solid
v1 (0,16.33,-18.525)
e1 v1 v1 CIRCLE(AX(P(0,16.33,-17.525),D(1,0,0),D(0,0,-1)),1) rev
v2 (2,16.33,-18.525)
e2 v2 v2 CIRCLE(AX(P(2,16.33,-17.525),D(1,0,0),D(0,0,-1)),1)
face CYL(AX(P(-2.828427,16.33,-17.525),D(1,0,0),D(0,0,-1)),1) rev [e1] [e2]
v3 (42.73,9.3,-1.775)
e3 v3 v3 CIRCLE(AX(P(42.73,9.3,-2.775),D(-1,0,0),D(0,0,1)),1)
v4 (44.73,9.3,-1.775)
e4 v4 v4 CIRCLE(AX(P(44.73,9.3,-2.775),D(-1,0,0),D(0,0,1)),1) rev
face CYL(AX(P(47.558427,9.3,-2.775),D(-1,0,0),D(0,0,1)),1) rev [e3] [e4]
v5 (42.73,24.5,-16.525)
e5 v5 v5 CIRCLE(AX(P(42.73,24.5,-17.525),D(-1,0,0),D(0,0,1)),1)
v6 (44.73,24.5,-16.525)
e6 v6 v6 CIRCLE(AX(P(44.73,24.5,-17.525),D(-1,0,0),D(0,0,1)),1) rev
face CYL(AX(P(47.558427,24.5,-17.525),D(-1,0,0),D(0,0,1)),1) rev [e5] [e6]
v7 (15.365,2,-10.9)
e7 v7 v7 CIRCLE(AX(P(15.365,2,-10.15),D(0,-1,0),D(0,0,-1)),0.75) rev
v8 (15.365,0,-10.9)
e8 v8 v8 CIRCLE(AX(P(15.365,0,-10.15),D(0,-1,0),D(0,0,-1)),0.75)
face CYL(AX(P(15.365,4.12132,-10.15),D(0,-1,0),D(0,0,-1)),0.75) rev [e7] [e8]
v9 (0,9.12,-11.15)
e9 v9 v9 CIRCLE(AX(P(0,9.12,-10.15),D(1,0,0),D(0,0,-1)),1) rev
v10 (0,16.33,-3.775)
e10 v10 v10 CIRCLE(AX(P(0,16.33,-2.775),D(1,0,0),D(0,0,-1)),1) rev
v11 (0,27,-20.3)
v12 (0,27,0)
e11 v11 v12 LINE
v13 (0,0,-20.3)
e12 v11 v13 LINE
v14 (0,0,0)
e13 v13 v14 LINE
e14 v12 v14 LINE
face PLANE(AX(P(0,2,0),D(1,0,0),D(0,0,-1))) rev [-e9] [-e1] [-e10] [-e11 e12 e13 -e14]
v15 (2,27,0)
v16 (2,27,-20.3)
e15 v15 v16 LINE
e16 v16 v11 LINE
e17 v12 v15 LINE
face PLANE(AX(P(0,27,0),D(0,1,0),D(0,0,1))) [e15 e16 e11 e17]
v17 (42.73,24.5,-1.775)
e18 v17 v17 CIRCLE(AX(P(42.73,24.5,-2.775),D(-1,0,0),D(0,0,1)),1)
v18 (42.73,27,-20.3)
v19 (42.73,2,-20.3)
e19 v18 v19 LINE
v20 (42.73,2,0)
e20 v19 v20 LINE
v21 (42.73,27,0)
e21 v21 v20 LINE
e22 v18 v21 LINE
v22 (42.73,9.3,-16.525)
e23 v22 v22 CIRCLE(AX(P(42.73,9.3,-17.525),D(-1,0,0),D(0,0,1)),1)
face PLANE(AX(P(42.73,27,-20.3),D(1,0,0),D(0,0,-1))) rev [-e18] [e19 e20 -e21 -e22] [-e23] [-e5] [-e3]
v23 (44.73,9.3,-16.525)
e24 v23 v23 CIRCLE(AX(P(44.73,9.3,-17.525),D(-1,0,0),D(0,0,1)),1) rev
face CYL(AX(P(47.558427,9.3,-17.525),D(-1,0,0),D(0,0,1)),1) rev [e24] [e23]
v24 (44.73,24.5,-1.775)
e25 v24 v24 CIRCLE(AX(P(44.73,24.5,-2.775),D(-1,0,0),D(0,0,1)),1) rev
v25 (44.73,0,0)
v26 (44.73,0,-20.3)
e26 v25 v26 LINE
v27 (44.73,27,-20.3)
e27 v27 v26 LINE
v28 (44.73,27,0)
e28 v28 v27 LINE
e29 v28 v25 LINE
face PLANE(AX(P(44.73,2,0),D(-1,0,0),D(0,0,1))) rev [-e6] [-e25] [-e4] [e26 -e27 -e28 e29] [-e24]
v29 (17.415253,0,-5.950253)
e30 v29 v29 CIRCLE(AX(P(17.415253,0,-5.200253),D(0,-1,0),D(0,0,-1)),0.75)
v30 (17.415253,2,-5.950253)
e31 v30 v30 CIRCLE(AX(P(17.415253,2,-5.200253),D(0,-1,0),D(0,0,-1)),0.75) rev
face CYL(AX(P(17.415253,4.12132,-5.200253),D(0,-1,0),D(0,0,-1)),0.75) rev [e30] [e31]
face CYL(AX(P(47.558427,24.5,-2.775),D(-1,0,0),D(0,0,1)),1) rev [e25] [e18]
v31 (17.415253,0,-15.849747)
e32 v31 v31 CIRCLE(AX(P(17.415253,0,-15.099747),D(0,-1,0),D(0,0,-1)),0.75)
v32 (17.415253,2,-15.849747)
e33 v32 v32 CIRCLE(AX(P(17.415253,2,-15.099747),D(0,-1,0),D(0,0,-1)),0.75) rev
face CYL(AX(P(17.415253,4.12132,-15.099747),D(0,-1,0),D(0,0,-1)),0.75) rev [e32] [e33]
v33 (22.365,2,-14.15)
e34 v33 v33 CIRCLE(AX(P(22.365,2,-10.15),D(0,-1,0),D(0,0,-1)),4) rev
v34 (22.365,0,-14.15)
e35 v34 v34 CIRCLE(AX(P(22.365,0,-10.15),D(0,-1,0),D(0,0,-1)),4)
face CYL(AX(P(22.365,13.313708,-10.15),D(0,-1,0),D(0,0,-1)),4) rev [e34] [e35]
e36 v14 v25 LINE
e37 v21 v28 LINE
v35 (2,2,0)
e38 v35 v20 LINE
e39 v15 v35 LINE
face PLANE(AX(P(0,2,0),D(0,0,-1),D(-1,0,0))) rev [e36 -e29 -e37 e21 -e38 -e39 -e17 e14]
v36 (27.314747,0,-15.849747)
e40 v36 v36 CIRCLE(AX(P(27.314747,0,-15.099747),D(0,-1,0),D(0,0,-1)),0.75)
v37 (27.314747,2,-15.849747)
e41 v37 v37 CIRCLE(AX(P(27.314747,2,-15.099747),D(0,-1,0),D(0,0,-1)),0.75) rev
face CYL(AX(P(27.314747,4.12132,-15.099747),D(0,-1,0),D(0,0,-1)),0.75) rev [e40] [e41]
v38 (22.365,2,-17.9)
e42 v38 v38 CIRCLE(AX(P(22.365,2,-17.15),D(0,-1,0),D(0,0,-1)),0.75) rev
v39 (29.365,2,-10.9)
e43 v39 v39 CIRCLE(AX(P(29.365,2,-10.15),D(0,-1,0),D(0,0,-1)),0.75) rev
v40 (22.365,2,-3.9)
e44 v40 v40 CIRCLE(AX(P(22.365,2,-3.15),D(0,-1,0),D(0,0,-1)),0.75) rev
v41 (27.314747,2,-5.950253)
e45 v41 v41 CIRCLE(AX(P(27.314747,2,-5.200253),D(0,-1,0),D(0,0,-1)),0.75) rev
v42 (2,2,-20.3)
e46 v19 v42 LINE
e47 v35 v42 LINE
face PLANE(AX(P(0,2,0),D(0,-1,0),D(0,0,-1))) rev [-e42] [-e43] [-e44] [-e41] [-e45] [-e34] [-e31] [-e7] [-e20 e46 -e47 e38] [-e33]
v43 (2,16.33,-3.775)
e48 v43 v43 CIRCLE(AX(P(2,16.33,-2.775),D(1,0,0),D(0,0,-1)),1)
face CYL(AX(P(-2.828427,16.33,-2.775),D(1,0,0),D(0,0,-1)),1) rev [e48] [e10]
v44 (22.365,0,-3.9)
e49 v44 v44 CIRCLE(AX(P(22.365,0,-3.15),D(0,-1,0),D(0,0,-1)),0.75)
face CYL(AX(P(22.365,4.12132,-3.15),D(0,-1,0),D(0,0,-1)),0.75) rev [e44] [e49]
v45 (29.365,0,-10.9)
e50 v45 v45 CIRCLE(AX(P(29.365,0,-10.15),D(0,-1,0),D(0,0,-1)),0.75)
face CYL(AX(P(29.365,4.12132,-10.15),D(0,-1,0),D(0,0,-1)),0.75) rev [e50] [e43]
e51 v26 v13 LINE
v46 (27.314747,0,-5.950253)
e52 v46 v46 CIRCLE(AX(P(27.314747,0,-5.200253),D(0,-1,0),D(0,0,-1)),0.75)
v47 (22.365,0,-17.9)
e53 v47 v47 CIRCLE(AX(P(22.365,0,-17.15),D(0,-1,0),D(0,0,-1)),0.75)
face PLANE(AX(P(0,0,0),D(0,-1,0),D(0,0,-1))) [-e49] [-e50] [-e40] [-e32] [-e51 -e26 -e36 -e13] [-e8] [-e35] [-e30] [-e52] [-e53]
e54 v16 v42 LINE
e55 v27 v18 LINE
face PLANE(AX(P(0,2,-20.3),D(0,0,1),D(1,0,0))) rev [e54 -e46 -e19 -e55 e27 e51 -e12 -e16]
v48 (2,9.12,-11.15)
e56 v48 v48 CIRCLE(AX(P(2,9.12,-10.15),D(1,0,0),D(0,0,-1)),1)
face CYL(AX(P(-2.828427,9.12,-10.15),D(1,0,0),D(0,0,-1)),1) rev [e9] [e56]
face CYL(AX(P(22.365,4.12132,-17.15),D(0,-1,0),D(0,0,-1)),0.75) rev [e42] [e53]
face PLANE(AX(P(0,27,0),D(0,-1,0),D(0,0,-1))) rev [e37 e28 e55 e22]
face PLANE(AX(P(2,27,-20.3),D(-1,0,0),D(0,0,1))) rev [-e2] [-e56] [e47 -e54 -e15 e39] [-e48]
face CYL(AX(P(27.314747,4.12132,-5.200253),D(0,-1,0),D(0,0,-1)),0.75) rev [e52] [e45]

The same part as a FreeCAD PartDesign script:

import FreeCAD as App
import Part
import Sketcher
Q = App.Units.Quantity


def add_polygon(sketch, points):
    """Adds a closed chain of lines whose ends are joined by coincident constraints."""
    first, n = sketch.GeometryCount, len(points)
    for a, b in zip(points, points[1:] + points[:1]):
        sketch.addGeometry(Part.LineSegment(App.Vector(*a, 0), App.Vector(*b, 0)), False)
    for i in range(n):
        sketch.addConstraint(Sketcher.Constraint("Coincident", first + i, 2, first + (i + 1) % n, 1))

doc = App.newDocument("Part")
body = doc.addObject("PartDesign::Body", "Body")

sketch1 = body.newObject("Sketcher::SketchObject", "Sketch")
sketch1.AttachmentSupport = (doc.getObject("XZ_Plane"), [""])
sketch1.MapMode = "FlatFace"
add_polygon(sketch1, [(0, -20), (0, 0), (45, 0), (45, -20)])
sketch1.addConstraint(Sketcher.Constraint("Vertical", 0))
sketch1.addConstraint(Sketcher.Constraint("Horizontal", 1))
sketch1.addConstraint(Sketcher.Constraint("Vertical", 2))
sketch1.addConstraint(Sketcher.Constraint("Horizontal", 3))
sketch1.addConstraint(Sketcher.Constraint("Coincident", 0, 2, -1, 1))
sketch1.addConstraint(Sketcher.Constraint("DistanceY", 0, 1, 0, 2, Q("20.3 mm")))
sketch1.addConstraint(Sketcher.Constraint("DistanceX", 1, 1, 1, 2, Q("44.73 mm")))
pad1 = body.newObject("PartDesign::Pad", "Pad")
pad1.Profile = sketch1
pad1.Length = 2
pad1.Reversed = True

sketch2 = body.newObject("Sketcher::SketchObject", "Sketch001")
sketch2.AttachmentSupport = (doc.getObject("XZ_Plane"), [""])
sketch2.MapMode = "FlatFace"
sketch2.AttachmentOffset = App.Placement(App.Vector(0, 0, -2), App.Rotation())
add_polygon(sketch2, [(0, -20.3), (0, 0), (2, 0), (2, -20.3)])
add_polygon(sketch2, [(42.7, -20.3), (42.7, 0), (44.7, 0), (44.7, -20.3)])
sketch2.addConstraint(Sketcher.Constraint("Vertical", 0))
sketch2.addConstraint(Sketcher.Constraint("Horizontal", 1))
sketch2.addConstraint(Sketcher.Constraint("Vertical", 2))
sketch2.addConstraint(Sketcher.Constraint("Horizontal", 3))
sketch2.addConstraint(Sketcher.Constraint("Vertical", 4))
sketch2.addConstraint(Sketcher.Constraint("Horizontal", 5))
sketch2.addConstraint(Sketcher.Constraint("Vertical", 6))
sketch2.addConstraint(Sketcher.Constraint("Horizontal", 7))
sketch2.addConstraint(Sketcher.Constraint("Coincident", 0, 2, -1, 1))
sketch2.addConstraint(Sketcher.Constraint("PointOnObject", 4, 2, -1))
sketch2.addConstraint(Sketcher.Constraint("Horizontal", 3, 2, 6, 2))
sketch2.addConstraint(Sketcher.Constraint("Equal", 3, 5))
sketch2.addConstraint(Sketcher.Constraint("DistanceX", 1, 1, 1, 2, Q("2 mm")))
sketch2.addConstraint(Sketcher.Constraint("DistanceY", 0, 1, 0, 2, Q("20.3 mm")))
sketch2.addConstraint(Sketcher.Constraint("DistanceX", -1, 1, 4, 2, Q("42.73 mm")))
pad2 = body.newObject("PartDesign::Pad", "Pad001")
pad2.Profile = sketch2
pad2.Length = 25
pad2.Reversed = True

sketch3 = body.newObject("Sketcher::SketchObject", "Sketch002")
sketch3.AttachmentSupport = (doc.getObject("XZ_Plane"), [""])
sketch3.MapMode = "FlatFace"
sketch3.addGeometry(Part.Circle(App.Vector(22.4, -10.2, 0), App.Vector(0, 0, 1), 4), False)
sketch3.addConstraint(Sketcher.Constraint("Diameter", 0, Q("8 mm")))
sketch3.addConstraint(Sketcher.Constraint("DistanceY", 0, 3, -1, 1, Q("10.15 mm")))
sketch3.addConstraint(Sketcher.Constraint("DistanceX", -1, 1, 0, 3, Q("22.365 mm")))
pocket1 = body.newObject("PartDesign::Pocket", "Pocket")
pocket1.Profile = sketch3
pocket1.Length = 2

sketch4 = body.newObject("Sketcher::SketchObject", "Sketch003")
sketch4.AttachmentSupport = (doc.getObject("XZ_Plane"), [""])
sketch4.MapMode = "FlatFace"
sketch4.addGeometry(Part.Circle(App.Vector(15.4, -10.2, 0), App.Vector(0, 0, 1), 0.8), False)
sketch4.addGeometry(Part.Circle(App.Vector(17.4, -5.2, 0), App.Vector(0, 0, 1), 0.8), False)
sketch4.addGeometry(Part.Circle(App.Vector(22.4, -3.1, 0), App.Vector(0, 0, 1), 0.8), False)
sketch4.addGeometry(Part.Circle(App.Vector(27.3, -5.2, 0), App.Vector(0, 0, 1), 0.8), False)
sketch4.addGeometry(Part.Circle(App.Vector(29.4, -10.2, 0), App.Vector(0, 0, 1), 0.8), False)
sketch4.addGeometry(Part.Circle(App.Vector(27.3, -15.1, 0), App.Vector(0, 0, 1), 0.8), False)
sketch4.addGeometry(Part.Circle(App.Vector(22.4, -17.1, 0), App.Vector(0, 0, 1), 0.8), False)
sketch4.addGeometry(Part.Circle(App.Vector(17.4, -15.1, 0), App.Vector(0, 0, 1), 0.8), False)
sketch4.addConstraint(Sketcher.Constraint("Equal", 0, 1))
sketch4.addConstraint(Sketcher.Constraint("Equal", 1, 2))
sketch4.addConstraint(Sketcher.Constraint("Equal", 2, 3))
sketch4.addConstraint(Sketcher.Constraint("Equal", 3, 4))
sketch4.addConstraint(Sketcher.Constraint("Equal", 4, 5))
sketch4.addConstraint(Sketcher.Constraint("Equal", 5, 6))
sketch4.addConstraint(Sketcher.Constraint("Equal", 6, 7))
sketch4.addConstraint(Sketcher.Constraint("Horizontal", 1, 3, 3, 3))
sketch4.addConstraint(Sketcher.Constraint("Horizontal", 0, 3, 4, 3))
sketch4.addConstraint(Sketcher.Constraint("Horizontal", 5, 3, 7, 3))
sketch4.addConstraint(Sketcher.Constraint("Vertical", 3, 3, 5, 3))
sketch4.addConstraint(Sketcher.Constraint("Vertical", 2, 3, 6, 3))
sketch4.addConstraint(Sketcher.Constraint("Vertical", 1, 3, 7, 3))
sketch4.addConstraint(Sketcher.Constraint("Diameter", 0, Q("1.5 mm")))
sketch4.addConstraint(Sketcher.Constraint("DistanceX", 0, 3, 2, 3, Q("7 mm")))
sketch4.addConstraint(Sketcher.Constraint("DistanceY", 0, 3, 2, 3, Q("7 mm")))
sketch4.addConstraint(Sketcher.Constraint("DistanceX", 2, 3, 4, 3, Q("7 mm")))
sketch4.addConstraint(Sketcher.Constraint("DistanceY", 6, 3, 0, 3, Q("7 mm")))
sketch4.addConstraint(Sketcher.Constraint("DistanceY", 0, 3, -1, 1, Q("10.15 mm")))
sketch4.addConstraint(Sketcher.Constraint("DistanceX", -1, 1, 0, 3, Q("15.365 mm")))
sketch4.addConstraint(Sketcher.Constraint("DistanceX", -1, 1, 1, 3, Q("17.415253 mm")))
sketch4.addConstraint(Sketcher.Constraint("DistanceY", 1, 3, -1, 1, Q("5.200253 mm")))
sketch4.addConstraint(Sketcher.Constraint("DistanceX", -1, 1, 3, 3, Q("27.314747 mm")))
sketch4.addConstraint(Sketcher.Constraint("DistanceY", 5, 3, -1, 1, Q("15.099747 mm")))
pocket2 = body.newObject("PartDesign::Pocket", "Pocket001")
pocket2.Profile = sketch4
pocket2.Length = 2

sketch5 = body.newObject("Sketcher::SketchObject", "Sketch004")
sketch5.AttachmentSupport = (doc.getObject("YZ_Plane"), [""])
sketch5.MapMode = "FlatFace"
sketch5.AttachmentOffset = App.Placement(App.Vector(0, 0, 2), App.Rotation())
sketch5.addGeometry(Part.Circle(App.Vector(9.1, -10.2, 0), App.Vector(0, 0, 1), 1), False)
sketch5.addGeometry(Part.Circle(App.Vector(16.3, -17.5, 0), App.Vector(0, 0, 1), 1), False)
sketch5.addGeometry(Part.Circle(App.Vector(16.3, -2.8, 0), App.Vector(0, 0, 1), 1), False)
sketch5.addConstraint(Sketcher.Constraint("Equal", 0, 1))
sketch5.addConstraint(Sketcher.Constraint("Equal", 1, 2))
sketch5.addConstraint(Sketcher.Constraint("Vertical", 1, 3, 2, 3))
sketch5.addConstraint(Sketcher.Constraint("Diameter", 0, Q("2 mm")))
sketch5.addConstraint(Sketcher.Constraint("DistanceX", -1, 1, 0, 3, Q("9.12 mm")))
sketch5.addConstraint(Sketcher.Constraint("DistanceY", 0, 3, -1, 1, Q("10.15 mm")))
sketch5.addConstraint(Sketcher.Constraint("DistanceX", -1, 1, 1, 3, Q("16.33 mm")))
sketch5.addConstraint(Sketcher.Constraint("DistanceY", 1, 3, 2, 3, Q("14.75 mm")))
sketch5.addConstraint(Sketcher.Constraint("DistanceY", 1, 3, -1, 1, Q("17.525 mm")))
pocket3 = body.newObject("PartDesign::Pocket", "Pocket002")
pocket3.Profile = sketch5
pocket3.Length = 2

sketch6 = body.newObject("Sketcher::SketchObject", "Sketch005")
sketch6.AttachmentSupport = (doc.getObject("YZ_Plane"), [""])
sketch6.MapMode = "FlatFace"
sketch6.AttachmentOffset = App.Placement(App.Vector(0, 0, 42.73), App.Rotation())
sketch6.addGeometry(Part.Circle(App.Vector(9.3, -2.8, 0), App.Vector(0, 0, 1), 1), False)
sketch6.addGeometry(Part.Circle(App.Vector(9.3, -17.5, 0), App.Vector(0, 0, 1), 1), False)
sketch6.addGeometry(Part.Circle(App.Vector(24.5, -17.5, 0), App.Vector(0, 0, 1), 1), False)
sketch6.addGeometry(Part.Circle(App.Vector(24.5, -2.8, 0), App.Vector(0, 0, 1), 1), False)
sketch6.addConstraint(Sketcher.Constraint("Equal", 0, 1))
sketch6.addConstraint(Sketcher.Constraint("Equal", 1, 2))
sketch6.addConstraint(Sketcher.Constraint("Equal", 2, 3))
sketch6.addConstraint(Sketcher.Constraint("Horizontal", 1, 3, 2, 3))
sketch6.addConstraint(Sketcher.Constraint("Horizontal", 0, 3, 3, 3))
sketch6.addConstraint(Sketcher.Constraint("Vertical", 0, 3, 1, 3))
sketch6.addConstraint(Sketcher.Constraint("Vertical", 2, 3, 3, 3))
sketch6.addConstraint(Sketcher.Constraint("Diameter", 0, Q("2 mm")))
sketch6.addConstraint(Sketcher.Constraint("DistanceX", -1, 1, 0, 3, Q("9.3 mm")))
sketch6.addConstraint(Sketcher.Constraint("DistanceX", -1, 1, 2, 3, Q("24.5 mm")))
sketch6.addConstraint(Sketcher.Constraint("DistanceY", 1, 3, 0, 3, Q("14.75 mm")))
sketch6.addConstraint(Sketcher.Constraint("DistanceY", 0, 3, -1, 1, Q("2.775 mm")))
pocket4 = body.newObject("PartDesign::Pocket", "Pocket003")
pocket4.Profile = sketch6
pocket4.Length = 2
pocket4.Reversed = True

doc.recompute()
